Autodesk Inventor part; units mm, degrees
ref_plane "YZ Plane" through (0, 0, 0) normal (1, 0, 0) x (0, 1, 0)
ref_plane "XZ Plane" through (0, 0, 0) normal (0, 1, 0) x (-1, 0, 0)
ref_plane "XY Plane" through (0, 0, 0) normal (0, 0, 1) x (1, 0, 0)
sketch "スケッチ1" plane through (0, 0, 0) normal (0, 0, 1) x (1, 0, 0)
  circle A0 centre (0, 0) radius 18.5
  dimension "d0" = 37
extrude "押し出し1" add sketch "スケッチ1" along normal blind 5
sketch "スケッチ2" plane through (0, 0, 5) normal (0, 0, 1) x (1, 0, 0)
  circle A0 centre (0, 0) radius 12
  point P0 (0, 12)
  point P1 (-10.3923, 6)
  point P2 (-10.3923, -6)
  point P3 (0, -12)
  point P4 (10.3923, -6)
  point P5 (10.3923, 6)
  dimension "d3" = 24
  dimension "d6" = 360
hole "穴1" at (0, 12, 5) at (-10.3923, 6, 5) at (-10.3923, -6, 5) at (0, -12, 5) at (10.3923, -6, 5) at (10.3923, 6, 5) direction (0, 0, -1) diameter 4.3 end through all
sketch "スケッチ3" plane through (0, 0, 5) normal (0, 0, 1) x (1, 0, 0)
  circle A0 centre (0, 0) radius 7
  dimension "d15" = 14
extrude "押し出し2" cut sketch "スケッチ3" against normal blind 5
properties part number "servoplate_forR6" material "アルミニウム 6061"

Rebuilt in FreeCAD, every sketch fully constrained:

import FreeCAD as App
import Part
import Sketcher

V = App.Vector
Q = App.Units.Quantity

doc = App.newDocument("Part")
body = doc.addObject("PartDesign::Body", "Body")

# Sketch on XY plane
sketch1 = doc.addObject("Sketcher::SketchObject", "Sketch")
body.addObject(sketch1)
sketch1.AttachmentSupport = (doc.XY_Plane, [""])
sketch1.MapMode = "FlatFace"
sketch1.addGeometry(Part.Circle(V(0, 0, 0), V(0, 0, 1), 18), False)
sketch1.addConstraint(Sketcher.Constraint("Coincident", 0, 3, -1, 1))
sketch1.addConstraint(Sketcher.Constraint("Diameter", 0, Q("37 mm")))
pad1 = doc.addObject("PartDesign::Pad", "Pad")
body.addObject(pad1)
pad1.Profile = sketch1
pad1.Length = 5

# Sketch on XY plane
sketch2 = doc.addObject("Sketcher::SketchObject", "Sketch001")
body.addObject(sketch2)
sketch2.AttachmentSupport = (doc.XY_Plane, [""])
sketch2.MapMode = "FlatFace"
sketch2.AttachmentOffset = App.Placement(V(0, 0, 5), App.Rotation())
sketch2.addGeometry(Part.Circle(V(0, 12, 0), V(0, 0, 1), 2.1), False)
sketch2.addGeometry(Part.Circle(V(-10.4, 6, 0), V(0, 0, 1), 2.1), False)
sketch2.addGeometry(Part.Circle(V(-10.4, -6, 0), V(0, 0, 1), 2.1), False)
sketch2.addGeometry(Part.Circle(V(0, -12, 0), V(0, 0, 1), 2.1), False)
sketch2.addGeometry(Part.Circle(V(10.4, -6, 0), V(0, 0, 1), 2.1), False)
sketch2.addGeometry(Part.Circle(V(10.4, 6, 0), V(0, 0, 1), 2.1), False)
sketch2.addConstraint(Sketcher.Constraint("Equal", 0, 1))
sketch2.addConstraint(Sketcher.Constraint("Equal", 1, 2))
sketch2.addConstraint(Sketcher.Constraint("Equal", 2, 3))
sketch2.addConstraint(Sketcher.Constraint("Equal", 3, 4))
sketch2.addConstraint(Sketcher.Constraint("Equal", 4, 5))
sketch2.addConstraint(Sketcher.Constraint("Symmetric", 0, 3, 3, 3, -1, 1))
sketch2.addConstraint(Sketcher.Constraint("Symmetric", 1, 3, 4, 3, -1, 1))
sketch2.addConstraint(Sketcher.Constraint("Symmetric", 2, 3, 5, 3, -1, 1))
sketch2.addConstraint(Sketcher.Constraint("Symmetric", 2, 3, 4, 3, -2))
sketch2.addConstraint(Sketcher.Constraint("PointOnObject", 0, 3, -2))
sketch2.addConstraint(Sketcher.Constraint("Diameter", 0, Q("4.3 mm")))
sketch2.addConstraint(Sketcher.Constraint("DistanceY", -1, 1, 0, 3, Q("12 mm")))
sketch2.addConstraint(Sketcher.Constraint("DistanceY", -1, 1, 1, 3, Q("6 mm")))
sketch2.addConstraint(Sketcher.Constraint("DistanceX", 1, 3, -1, 1, Q("10.3923 mm")))
doc.recompute()
hole = doc.addObject("PartDesign::Hole", "Hole")
body.addObject(hole)
hole.Profile = sketch2
hole.ThreadType = "None"
hole.Diameter = 4.3
hole.DepthType = "ThroughAll"

# Sketch on XY plane
sketch3 = doc.addObject("Sketcher::SketchObject", "Sketch002")
body.addObject(sketch3)
sketch3.AttachmentSupport = (doc.XY_Plane, [""])
sketch3.MapMode = "FlatFace"
sketch3.AttachmentOffset = App.Placement(V(0, 0, 5), App.Rotation())
sketch3.addGeometry(Part.Circle(V(0, 0, 0), V(0, 0, 1), 7), False)
sketch3.addConstraint(Sketcher.Constraint("Coincident", 0, 3, -1, 1))
sketch3.addConstraint(Sketcher.Constraint("Diameter", 0, Q("14 mm")))
pocket1 = doc.addObject("PartDesign::Pocket", "Pocket")
body.addObject(pocket1)
pocket1.Profile = sketch3
pocket1.Length = 5

doc.recompute()
